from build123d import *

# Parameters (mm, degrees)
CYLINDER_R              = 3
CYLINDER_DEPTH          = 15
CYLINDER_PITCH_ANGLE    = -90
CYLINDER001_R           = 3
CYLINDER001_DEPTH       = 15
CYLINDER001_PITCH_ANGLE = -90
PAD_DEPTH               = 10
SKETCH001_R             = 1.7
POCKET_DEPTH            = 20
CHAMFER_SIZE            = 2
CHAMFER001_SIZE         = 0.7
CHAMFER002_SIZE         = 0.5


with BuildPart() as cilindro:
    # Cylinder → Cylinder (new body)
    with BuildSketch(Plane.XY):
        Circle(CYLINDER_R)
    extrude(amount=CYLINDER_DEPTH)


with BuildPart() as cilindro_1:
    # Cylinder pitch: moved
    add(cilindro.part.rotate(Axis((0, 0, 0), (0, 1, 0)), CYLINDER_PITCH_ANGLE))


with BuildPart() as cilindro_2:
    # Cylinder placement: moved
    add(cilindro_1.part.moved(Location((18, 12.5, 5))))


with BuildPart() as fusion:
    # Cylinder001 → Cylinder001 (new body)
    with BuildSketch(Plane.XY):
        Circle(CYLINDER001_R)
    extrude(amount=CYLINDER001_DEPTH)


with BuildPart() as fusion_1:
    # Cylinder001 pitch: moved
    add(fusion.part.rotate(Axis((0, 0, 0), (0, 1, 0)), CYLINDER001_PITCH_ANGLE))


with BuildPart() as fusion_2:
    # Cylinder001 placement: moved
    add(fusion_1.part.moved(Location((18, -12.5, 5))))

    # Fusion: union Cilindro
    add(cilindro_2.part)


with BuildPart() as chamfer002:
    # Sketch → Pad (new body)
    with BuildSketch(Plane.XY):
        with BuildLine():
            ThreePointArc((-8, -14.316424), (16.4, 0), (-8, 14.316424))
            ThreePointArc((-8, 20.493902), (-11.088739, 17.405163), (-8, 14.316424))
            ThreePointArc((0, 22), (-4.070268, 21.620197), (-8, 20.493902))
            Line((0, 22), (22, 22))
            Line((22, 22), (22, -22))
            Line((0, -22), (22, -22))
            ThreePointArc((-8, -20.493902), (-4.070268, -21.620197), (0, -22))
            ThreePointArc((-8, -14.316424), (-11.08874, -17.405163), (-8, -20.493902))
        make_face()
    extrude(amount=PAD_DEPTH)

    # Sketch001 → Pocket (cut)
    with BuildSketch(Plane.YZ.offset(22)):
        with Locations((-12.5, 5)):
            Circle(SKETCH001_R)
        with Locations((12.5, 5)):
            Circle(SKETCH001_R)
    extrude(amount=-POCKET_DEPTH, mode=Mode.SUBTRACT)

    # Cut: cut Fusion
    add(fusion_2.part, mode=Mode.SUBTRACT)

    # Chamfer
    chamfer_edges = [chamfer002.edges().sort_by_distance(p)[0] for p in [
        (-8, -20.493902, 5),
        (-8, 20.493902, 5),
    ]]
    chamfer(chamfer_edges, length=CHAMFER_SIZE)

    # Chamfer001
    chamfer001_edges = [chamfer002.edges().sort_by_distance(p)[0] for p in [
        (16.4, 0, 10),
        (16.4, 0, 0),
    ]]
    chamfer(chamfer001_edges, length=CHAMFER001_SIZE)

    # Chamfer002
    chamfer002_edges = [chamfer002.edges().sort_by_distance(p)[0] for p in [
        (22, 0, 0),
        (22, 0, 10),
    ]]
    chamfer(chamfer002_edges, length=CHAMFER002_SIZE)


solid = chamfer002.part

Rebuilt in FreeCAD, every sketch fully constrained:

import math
import FreeCAD as App
import Part
import Sketcher
from FreeCAD import Vector
Q = App.Units.Quantity


def edges_at(feature, points):
    """Names of the edges that pass closest to the given points."""
    edges = feature.Shape.Edges
    near = lambda p: min(range(len(edges)), key=lambda i: edges[i].distToShape(Part.Vertex(*p))[0])
    return sorted({f"Edge{near(p) + 1}" for p in points})

doc = App.newDocument("Part")
body = doc.addObject("PartDesign::Body", "Body")

# Sketch on XY plane
sketch1 = doc.addObject("Sketcher::SketchObject", "Sketch")
body.addObject(sketch1)
sketch1.AttachmentSupport = (doc.XY_Plane, [""])
sketch1.MapMode = "FlatFace"
sketch1.addGeometry(Part.Circle(Vector(0, 0, 0), Vector(0, 0, 1), 3), False)
sketch1.addConstraint([
    Sketcher.Constraint("Coincident", 0, 3, -1, 1),
    Sketcher.Constraint("Diameter", 0, Q("6 mm")),
])
pad1 = doc.addObject("PartDesign::Pad", "Pad")
body.addObject(pad1)
pad1.Profile = sketch1
pad1.Length = 15
body2 = doc.addObject("PartDesign::Body", "Body001")
doc.recompute()

body.Placement = App.Placement(Vector(0, 0, 0), App.Rotation(Vector(0, 1, 0), 270))
boolean = doc.addObject("PartDesign::Boolean", "Boolean")
body2.addObject(boolean)
boolean.Type = "Fuse"
boolean.addObjects([body])
body3 = doc.addObject("PartDesign::Body", "Body002")
doc.recompute()

body2.Placement = App.Placement(Vector(18, 12.5, 5), App.Rotation(Vector(0, 0, 1), 0))
boolean2 = doc.addObject("PartDesign::Boolean", "Boolean001")
body3.addObject(boolean2)
boolean2.Type = "Fuse"
boolean2.addObjects([body2])
body4 = doc.addObject("PartDesign::Body", "Body003")

# Sketch on XY plane
sketch2 = doc.addObject("Sketcher::SketchObject", "Sketch001")
body4.addObject(sketch2)
sketch2.AttachmentSupport = (doc.getObject("XY_Plane003"), [""])
sketch2.MapMode = "FlatFace"
sketch2.addGeometry(Part.Circle(Vector(0, 0, 0), Vector(0, 0, 1), 3), False)
sketch2.addConstraint([
    Sketcher.Constraint("Coincident", 0, 3, -1, 1),
    Sketcher.Constraint("Diameter", 0, Q("6 mm")),
])
pad2 = doc.addObject("PartDesign::Pad", "Pad001")
body4.addObject(pad2)
pad2.Profile = sketch2
pad2.Length = 15
body5 = doc.addObject("PartDesign::Body", "Body004")
doc.recompute()

body4.Placement = App.Placement(Vector(0, 0, 0), App.Rotation(Vector(0, 1, 0), 270))
boolean3 = doc.addObject("PartDesign::Boolean", "Boolean002")
body5.addObject(boolean3)
boolean3.Type = "Fuse"
boolean3.addObjects([body4])
body6 = doc.addObject("PartDesign::Body", "Body005")
body6.AllowCompound = True
doc.recompute()

body5.Placement = App.Placement(Vector(18, -12.5, 5), App.Rotation(Vector(0, 0, 1), 0))
boolean4 = doc.addObject("PartDesign::Boolean", "Boolean003")
body6.addObject(boolean4)
boolean4.Type = "Fuse"
boolean4.addObjects([body5])
doc.recompute()

boolean5 = doc.addObject("PartDesign::Boolean", "Boolean004")
body6.addObject(boolean5)
boolean5.Type = "Fuse"
boolean5.addObjects([body3])
body7 = doc.addObject("PartDesign::Body", "Body006")

# Sketch on XY plane
sketch3 = doc.addObject("Sketcher::SketchObject", "Sketch002")
body7.addObject(sketch3)
sketch3.AttachmentSupport = (doc.getObject("XY_Plane006"), [""])
sketch3.MapMode = "FlatFace"
sketch3.addGeometry([
    Part.ArcOfCircle(Part.Circle(Vector(0, 0, 0), Vector(0, 0, 1), 16.4), math.radians(-119.196405), math.radians(119.196405)),  # 0
    Part.ArcOfCircle(Part.Circle(Vector(-8.000001, -17.405163, 0), Vector(0, 0, 1), 3.088739), math.radians(89.999981), math.radians(270.000019)),  # 1
    Part.ArcOfCircle(Part.Circle(Vector(0.000001, 0.000013, 0), Vector(0, 0, 1), 22.000013), math.radians(-111.323677), math.radians(-90.000003)),  # 2
    Part.LineSegment(Vector(0, -22, 0), Vector(22, -22, 0)),  # 3
    Part.LineSegment(Vector(22, -22, 0), Vector(22, 22, 0)),  # 4
    Part.LineSegment(Vector(22, 22, 0), Vector(0, 22, 0)),  # 5
    Part.ArcOfCircle(Part.Circle(Vector(0.000001, -0.000013, 0), Vector(0, 0, 1), 22.000013), math.radians(90.000003), math.radians(111.323677)),  # 6
    Part.ArcOfCircle(Part.Circle(Vector(-8, 17.405163, 0), Vector(0, 0, 1), 3.088739), math.radians(90), math.radians(270)),  # 7
], False)
sketch3.addConstraint([
    Sketcher.Constraint("Coincident", 0, 1, 1, 1),
    Sketcher.Constraint("Coincident", 1, 2, 2, 1),
    Sketcher.Constraint("Tangent", 2, 2, 3, 1),
    Sketcher.Constraint("Coincident", 3, 2, 4, 1),
    Sketcher.Constraint("Coincident", 4, 2, 5, 1),
    Sketcher.Constraint("Tangent", 5, 2, 6, 1),
    Sketcher.Constraint("Coincident", 6, 2, 7, 1),
    Sketcher.Constraint("Coincident", 7, 2, 0, 2),
    Sketcher.Constraint("Horizontal", 3),
    Sketcher.Constraint("Vertical", 4),
    Sketcher.Constraint("Horizontal", 5),
    Sketcher.Constraint("Coincident", 0, 3, -1, 1),
    Sketcher.Constraint("Equal", 2, 6),
    Sketcher.Constraint("Equal", 1, 7),
    Sketcher.Constraint("Symmetric", 2, 3, 6, 3, -1, 1),
    Sketcher.Constraint("Symmetric", 1, 3, 7, 3, -1),
    Sketcher.Constraint("PointOnObject", 2, 3, -2),
    Sketcher.Constraint("Vertical", 7, 3, 0, 1),
    Sketcher.Constraint("Vertical", 0, 1, 1, 2),
    Sketcher.Constraint("Radius", 0, Q("16.4 mm")),
    Sketcher.Constraint("DistanceX", 3, 1, 3, 2, Q("22 mm")),
    Sketcher.Constraint("DistanceY", 4, 1, 4, 2, Q("44 mm")),
    Sketcher.Constraint("DistanceX", 1, 3, -1, 1, Q("8.000001 mm")),
    Sketcher.Constraint("Radius", 1, Q("3.088739 mm")),
])
pad3 = doc.addObject("PartDesign::Pad", "Pad002")
body7.addObject(pad3)
pad3.Profile = sketch3
pad3.Length = 10

# Sketch on YZ plane
sketch4 = doc.addObject("Sketcher::SketchObject", "Sketch003")
body7.addObject(sketch4)
sketch4.AttachmentSupport = (doc.getObject("YZ_Plane006"), [""])
sketch4.MapMode = "FlatFace"
sketch4.AttachmentOffset = App.Placement(Vector(0, 0, 22), App.Rotation())
sketch4.addGeometry([
    Part.Circle(Vector(-12.5, 5, 0), Vector(0, 0, 1), 1.7),
    Part.Circle(Vector(12.5, 5, 0), Vector(0, 0, 1), 1.7),
], False)
sketch4.addConstraint([
    Sketcher.Constraint("Equal", 0, 1),
    Sketcher.Constraint("Symmetric", 0, 3, 1, 3, -2),
    Sketcher.Constraint("Diameter", 0, Q("3.4 mm")),
    Sketcher.Constraint("DistanceY", -1, 1, 0, 3, Q("5 mm")),
    Sketcher.Constraint("DistanceX", 0, 3, 1, 3, Q("25 mm")),
])
pocket1 = doc.addObject("PartDesign::Pocket", "Pocket")
body7.addObject(pocket1)
pocket1.Profile = sketch4
pocket1.Length = 20
doc.recompute()

boolean6 = doc.addObject("PartDesign::Boolean", "Boolean005")
body7.addObject(boolean6)
boolean6.Type = "Cut"
boolean6.addObjects([body6])
doc.recompute()

chamfer = doc.addObject("PartDesign::Chamfer", "Chamfer")
body7.addObject(chamfer)
chamfer.Base = (boolean6, edges_at(boolean6, [(-8, -20.494, 5), (-8, 20.494, 5)]))
chamfer.Size = 2
doc.recompute()

chamfer2 = doc.addObject("PartDesign::Chamfer", "Chamfer001")
body7.addObject(chamfer2)
chamfer2.Base = (chamfer, edges_at(chamfer, [(16.4, 0, 10), (16.4, 0, 0)]))
chamfer2.Size = 0.7
doc.recompute()

chamfer3 = doc.addObject("PartDesign::Chamfer", "Chamfer002")
body7.addObject(chamfer3)
chamfer3.Base = (chamfer2, edges_at(chamfer2, [(22, 0, 0), (22, 0, 10)]))
chamfer3.Size = 0.5

doc.recompute()
